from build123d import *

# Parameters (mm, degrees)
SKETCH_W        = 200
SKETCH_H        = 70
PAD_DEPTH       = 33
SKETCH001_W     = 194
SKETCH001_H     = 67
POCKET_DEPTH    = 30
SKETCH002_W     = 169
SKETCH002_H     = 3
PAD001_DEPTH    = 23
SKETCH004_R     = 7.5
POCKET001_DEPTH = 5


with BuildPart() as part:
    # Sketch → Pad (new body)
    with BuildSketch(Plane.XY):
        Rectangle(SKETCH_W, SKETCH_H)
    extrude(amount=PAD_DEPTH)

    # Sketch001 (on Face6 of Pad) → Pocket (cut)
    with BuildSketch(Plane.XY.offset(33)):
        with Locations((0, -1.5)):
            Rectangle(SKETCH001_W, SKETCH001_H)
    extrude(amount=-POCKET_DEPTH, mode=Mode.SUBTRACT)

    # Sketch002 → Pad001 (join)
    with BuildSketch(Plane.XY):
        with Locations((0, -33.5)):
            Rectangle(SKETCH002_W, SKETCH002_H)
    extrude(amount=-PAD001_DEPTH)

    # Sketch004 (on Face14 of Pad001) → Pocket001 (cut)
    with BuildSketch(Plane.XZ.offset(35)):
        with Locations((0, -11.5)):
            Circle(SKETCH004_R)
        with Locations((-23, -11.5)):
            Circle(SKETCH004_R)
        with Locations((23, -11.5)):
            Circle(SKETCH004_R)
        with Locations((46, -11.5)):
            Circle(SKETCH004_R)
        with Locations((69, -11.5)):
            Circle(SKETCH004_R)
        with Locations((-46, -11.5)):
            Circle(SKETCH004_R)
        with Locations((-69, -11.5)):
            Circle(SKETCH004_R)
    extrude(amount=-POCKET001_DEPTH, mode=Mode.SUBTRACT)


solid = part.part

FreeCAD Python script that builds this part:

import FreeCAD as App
import Part
import Sketcher

V = App.Vector
Q = App.Units.Quantity


def add_polygon(sketch, points):
    """Adds a closed chain of lines whose ends are joined by coincident constraints."""
    first, n = sketch.GeometryCount, len(points)
    for a, b in zip(points, points[1:] + points[:1]):
        sketch.addGeometry(Part.LineSegment(App.Vector(*a, 0), App.Vector(*b, 0)), False)
    for i in range(n):
        sketch.addConstraint(Sketcher.Constraint("Coincident", first + i, 2, first + (i + 1) % n, 1))

doc = App.newDocument("Part")
body = doc.addObject("PartDesign::Body", "Body")

# Sketch on XY plane
sketch1 = body.newObject("Sketcher::SketchObject", "Sketch")
sketch1.AttachmentSupport = (doc.getObject("XY_Plane"), [""])
sketch1.MapMode = "FlatFace"
add_polygon(sketch1, [(-100, 35), (-100, -35), (100, -35), (100, 35)])  # lines 0-3
sketch1.addConstraint([
    Sketcher.Constraint("Vertical", 0),
    Sketcher.Constraint("Horizontal", 1),
    Sketcher.Constraint("Vertical", 2),
    Sketcher.Constraint("Horizontal", 3),
    Sketcher.Constraint("Symmetric", 0, 2, 2, 2, -1, 1),
    Sketcher.Constraint("DistanceX", 1, 1, 1, 2, Q("200 mm")),
    Sketcher.Constraint("DistanceY", 0, 2, 0, 1, Q("70 mm")),
])
pad1 = body.newObject("PartDesign::Pad", "Pad")
pad1.Profile = sketch1
pad1.Length = 33

# Sketch on XY plane
sketch2 = body.newObject("Sketcher::SketchObject", "Sketch001")
sketch2.AttachmentSupport = (doc.getObject("XY_Plane"), [""])
sketch2.MapMode = "FlatFace"
sketch2.AttachmentOffset = App.Placement(V(0, 0, 33), App.Rotation())
add_polygon(sketch2, [(-97, 32), (-97, -35), (97, -35), (97, 32)])  # lines 0-3
sketch2.addConstraint([
    Sketcher.Constraint("Vertical", 0),
    Sketcher.Constraint("Horizontal", 1),
    Sketcher.Constraint("Vertical", 2),
    Sketcher.Constraint("Horizontal", 3),
    Sketcher.Constraint("DistanceX", 1, 1, 1, 2, Q("194 mm")),
    Sketcher.Constraint("DistanceY", 0, 2, 0, 1, Q("67 mm")),
    Sketcher.Constraint("DistanceX", 0, 2, -1, 1, Q("97 mm")),
    Sketcher.Constraint("DistanceY", 0, 2, -1, 1, Q("35 mm")),
])
pocket1 = body.newObject("PartDesign::Pocket", "Pocket")
pocket1.Profile = sketch2
pocket1.Length = 30

# Sketch on XY plane
sketch3 = body.newObject("Sketcher::SketchObject", "Sketch002")
sketch3.AttachmentSupport = (doc.getObject("XY_Plane"), [""])
sketch3.MapMode = "FlatFace"
add_polygon(sketch3, [(-84.5, -32), (-84.5, -35), (84.5, -35), (84.5, -32)])  # lines 0-3
sketch3.addConstraint([
    Sketcher.Constraint("Vertical", 0),
    Sketcher.Constraint("Horizontal", 1),
    Sketcher.Constraint("Vertical", 2),
    Sketcher.Constraint("Horizontal", 3),
    Sketcher.Constraint("DistanceX", 1, 1, 1, 2, Q("169 mm")),
    Sketcher.Constraint("DistanceY", 0, 2, 0, 1, Q("3 mm")),
    Sketcher.Constraint("DistanceY", 0, 2, -1, 1, Q("35 mm")),
    Sketcher.Constraint("DistanceX", 0, 2, -1, 1, Q("84.5 mm")),
])
pad2 = body.newObject("PartDesign::Pad", "Pad001")
pad2.Profile = sketch3
pad2.Length = 23
pad2.Reversed = True

# Sketch on XZ plane
sketch4 = body.newObject("Sketcher::SketchObject", "Sketch003")
sketch4.AttachmentSupport = (doc.getObject("XZ_Plane"), [""])
sketch4.MapMode = "FlatFace"
sketch4.AttachmentOffset = App.Placement(V(0, 0, 35), App.Rotation())
sketch4.addGeometry([
    Part.Circle(V(0, -12, 0), V(0, 0, 1), 8),  # 0
    Part.Circle(V(-23, -12, 0), V(0, 0, 1), 8),  # 1
    Part.Circle(V(23, -12, 0), V(0, 0, 1), 8),  # 2
    Part.Circle(V(46, -12, 0), V(0, 0, 1), 8),  # 3
    Part.Circle(V(69, -12, 0), V(0, 0, 1), 8),  # 4
    Part.Circle(V(-46, -12, 0), V(0, 0, 1), 8),  # 5
    Part.Circle(V(-69, -12, 0), V(0, 0, 1), 8),  # 6
], False)
sketch4.addConstraint([
    Sketcher.Constraint("Equal", 0, 1),
    Sketcher.Constraint("Equal", 1, 2),
    Sketcher.Constraint("Equal", 2, 3),
    Sketcher.Constraint("Equal", 3, 4),
    Sketcher.Constraint("Equal", 4, 5),
    Sketcher.Constraint("Equal", 5, 6),
    Sketcher.Constraint("Symmetric", 1, 3, 2, 3, -2),
    Sketcher.Constraint("Symmetric", 3, 3, 5, 3, -2),
    Sketcher.Constraint("Symmetric", 4, 3, 6, 3, -2),
    Sketcher.Constraint("PointOnObject", 0, 3, -2),
    Sketcher.Constraint("Horizontal", 0, 3, 1, 3),
    Sketcher.Constraint("Horizontal", 2, 3, 3, 3),
    Sketcher.Constraint("Horizontal", 3, 3, 4, 3),
    Sketcher.Constraint("Diameter", 0, Q("15 mm")),
    Sketcher.Constraint("DistanceX", 1, 3, -1, 1, Q("23 mm")),
    Sketcher.Constraint("DistanceX", -1, 1, 3, 3, Q("46 mm")),
    Sketcher.Constraint("DistanceX", -1, 1, 4, 3, Q("69 mm")),
    Sketcher.Constraint("DistanceY", 0, 3, -1, 1, Q("11.5 mm")),
])
pocket2 = body.newObject("PartDesign::Pocket", "Pocket001")
pocket2.Profile = sketch4
pocket2.Length = 5

doc.recompute()
